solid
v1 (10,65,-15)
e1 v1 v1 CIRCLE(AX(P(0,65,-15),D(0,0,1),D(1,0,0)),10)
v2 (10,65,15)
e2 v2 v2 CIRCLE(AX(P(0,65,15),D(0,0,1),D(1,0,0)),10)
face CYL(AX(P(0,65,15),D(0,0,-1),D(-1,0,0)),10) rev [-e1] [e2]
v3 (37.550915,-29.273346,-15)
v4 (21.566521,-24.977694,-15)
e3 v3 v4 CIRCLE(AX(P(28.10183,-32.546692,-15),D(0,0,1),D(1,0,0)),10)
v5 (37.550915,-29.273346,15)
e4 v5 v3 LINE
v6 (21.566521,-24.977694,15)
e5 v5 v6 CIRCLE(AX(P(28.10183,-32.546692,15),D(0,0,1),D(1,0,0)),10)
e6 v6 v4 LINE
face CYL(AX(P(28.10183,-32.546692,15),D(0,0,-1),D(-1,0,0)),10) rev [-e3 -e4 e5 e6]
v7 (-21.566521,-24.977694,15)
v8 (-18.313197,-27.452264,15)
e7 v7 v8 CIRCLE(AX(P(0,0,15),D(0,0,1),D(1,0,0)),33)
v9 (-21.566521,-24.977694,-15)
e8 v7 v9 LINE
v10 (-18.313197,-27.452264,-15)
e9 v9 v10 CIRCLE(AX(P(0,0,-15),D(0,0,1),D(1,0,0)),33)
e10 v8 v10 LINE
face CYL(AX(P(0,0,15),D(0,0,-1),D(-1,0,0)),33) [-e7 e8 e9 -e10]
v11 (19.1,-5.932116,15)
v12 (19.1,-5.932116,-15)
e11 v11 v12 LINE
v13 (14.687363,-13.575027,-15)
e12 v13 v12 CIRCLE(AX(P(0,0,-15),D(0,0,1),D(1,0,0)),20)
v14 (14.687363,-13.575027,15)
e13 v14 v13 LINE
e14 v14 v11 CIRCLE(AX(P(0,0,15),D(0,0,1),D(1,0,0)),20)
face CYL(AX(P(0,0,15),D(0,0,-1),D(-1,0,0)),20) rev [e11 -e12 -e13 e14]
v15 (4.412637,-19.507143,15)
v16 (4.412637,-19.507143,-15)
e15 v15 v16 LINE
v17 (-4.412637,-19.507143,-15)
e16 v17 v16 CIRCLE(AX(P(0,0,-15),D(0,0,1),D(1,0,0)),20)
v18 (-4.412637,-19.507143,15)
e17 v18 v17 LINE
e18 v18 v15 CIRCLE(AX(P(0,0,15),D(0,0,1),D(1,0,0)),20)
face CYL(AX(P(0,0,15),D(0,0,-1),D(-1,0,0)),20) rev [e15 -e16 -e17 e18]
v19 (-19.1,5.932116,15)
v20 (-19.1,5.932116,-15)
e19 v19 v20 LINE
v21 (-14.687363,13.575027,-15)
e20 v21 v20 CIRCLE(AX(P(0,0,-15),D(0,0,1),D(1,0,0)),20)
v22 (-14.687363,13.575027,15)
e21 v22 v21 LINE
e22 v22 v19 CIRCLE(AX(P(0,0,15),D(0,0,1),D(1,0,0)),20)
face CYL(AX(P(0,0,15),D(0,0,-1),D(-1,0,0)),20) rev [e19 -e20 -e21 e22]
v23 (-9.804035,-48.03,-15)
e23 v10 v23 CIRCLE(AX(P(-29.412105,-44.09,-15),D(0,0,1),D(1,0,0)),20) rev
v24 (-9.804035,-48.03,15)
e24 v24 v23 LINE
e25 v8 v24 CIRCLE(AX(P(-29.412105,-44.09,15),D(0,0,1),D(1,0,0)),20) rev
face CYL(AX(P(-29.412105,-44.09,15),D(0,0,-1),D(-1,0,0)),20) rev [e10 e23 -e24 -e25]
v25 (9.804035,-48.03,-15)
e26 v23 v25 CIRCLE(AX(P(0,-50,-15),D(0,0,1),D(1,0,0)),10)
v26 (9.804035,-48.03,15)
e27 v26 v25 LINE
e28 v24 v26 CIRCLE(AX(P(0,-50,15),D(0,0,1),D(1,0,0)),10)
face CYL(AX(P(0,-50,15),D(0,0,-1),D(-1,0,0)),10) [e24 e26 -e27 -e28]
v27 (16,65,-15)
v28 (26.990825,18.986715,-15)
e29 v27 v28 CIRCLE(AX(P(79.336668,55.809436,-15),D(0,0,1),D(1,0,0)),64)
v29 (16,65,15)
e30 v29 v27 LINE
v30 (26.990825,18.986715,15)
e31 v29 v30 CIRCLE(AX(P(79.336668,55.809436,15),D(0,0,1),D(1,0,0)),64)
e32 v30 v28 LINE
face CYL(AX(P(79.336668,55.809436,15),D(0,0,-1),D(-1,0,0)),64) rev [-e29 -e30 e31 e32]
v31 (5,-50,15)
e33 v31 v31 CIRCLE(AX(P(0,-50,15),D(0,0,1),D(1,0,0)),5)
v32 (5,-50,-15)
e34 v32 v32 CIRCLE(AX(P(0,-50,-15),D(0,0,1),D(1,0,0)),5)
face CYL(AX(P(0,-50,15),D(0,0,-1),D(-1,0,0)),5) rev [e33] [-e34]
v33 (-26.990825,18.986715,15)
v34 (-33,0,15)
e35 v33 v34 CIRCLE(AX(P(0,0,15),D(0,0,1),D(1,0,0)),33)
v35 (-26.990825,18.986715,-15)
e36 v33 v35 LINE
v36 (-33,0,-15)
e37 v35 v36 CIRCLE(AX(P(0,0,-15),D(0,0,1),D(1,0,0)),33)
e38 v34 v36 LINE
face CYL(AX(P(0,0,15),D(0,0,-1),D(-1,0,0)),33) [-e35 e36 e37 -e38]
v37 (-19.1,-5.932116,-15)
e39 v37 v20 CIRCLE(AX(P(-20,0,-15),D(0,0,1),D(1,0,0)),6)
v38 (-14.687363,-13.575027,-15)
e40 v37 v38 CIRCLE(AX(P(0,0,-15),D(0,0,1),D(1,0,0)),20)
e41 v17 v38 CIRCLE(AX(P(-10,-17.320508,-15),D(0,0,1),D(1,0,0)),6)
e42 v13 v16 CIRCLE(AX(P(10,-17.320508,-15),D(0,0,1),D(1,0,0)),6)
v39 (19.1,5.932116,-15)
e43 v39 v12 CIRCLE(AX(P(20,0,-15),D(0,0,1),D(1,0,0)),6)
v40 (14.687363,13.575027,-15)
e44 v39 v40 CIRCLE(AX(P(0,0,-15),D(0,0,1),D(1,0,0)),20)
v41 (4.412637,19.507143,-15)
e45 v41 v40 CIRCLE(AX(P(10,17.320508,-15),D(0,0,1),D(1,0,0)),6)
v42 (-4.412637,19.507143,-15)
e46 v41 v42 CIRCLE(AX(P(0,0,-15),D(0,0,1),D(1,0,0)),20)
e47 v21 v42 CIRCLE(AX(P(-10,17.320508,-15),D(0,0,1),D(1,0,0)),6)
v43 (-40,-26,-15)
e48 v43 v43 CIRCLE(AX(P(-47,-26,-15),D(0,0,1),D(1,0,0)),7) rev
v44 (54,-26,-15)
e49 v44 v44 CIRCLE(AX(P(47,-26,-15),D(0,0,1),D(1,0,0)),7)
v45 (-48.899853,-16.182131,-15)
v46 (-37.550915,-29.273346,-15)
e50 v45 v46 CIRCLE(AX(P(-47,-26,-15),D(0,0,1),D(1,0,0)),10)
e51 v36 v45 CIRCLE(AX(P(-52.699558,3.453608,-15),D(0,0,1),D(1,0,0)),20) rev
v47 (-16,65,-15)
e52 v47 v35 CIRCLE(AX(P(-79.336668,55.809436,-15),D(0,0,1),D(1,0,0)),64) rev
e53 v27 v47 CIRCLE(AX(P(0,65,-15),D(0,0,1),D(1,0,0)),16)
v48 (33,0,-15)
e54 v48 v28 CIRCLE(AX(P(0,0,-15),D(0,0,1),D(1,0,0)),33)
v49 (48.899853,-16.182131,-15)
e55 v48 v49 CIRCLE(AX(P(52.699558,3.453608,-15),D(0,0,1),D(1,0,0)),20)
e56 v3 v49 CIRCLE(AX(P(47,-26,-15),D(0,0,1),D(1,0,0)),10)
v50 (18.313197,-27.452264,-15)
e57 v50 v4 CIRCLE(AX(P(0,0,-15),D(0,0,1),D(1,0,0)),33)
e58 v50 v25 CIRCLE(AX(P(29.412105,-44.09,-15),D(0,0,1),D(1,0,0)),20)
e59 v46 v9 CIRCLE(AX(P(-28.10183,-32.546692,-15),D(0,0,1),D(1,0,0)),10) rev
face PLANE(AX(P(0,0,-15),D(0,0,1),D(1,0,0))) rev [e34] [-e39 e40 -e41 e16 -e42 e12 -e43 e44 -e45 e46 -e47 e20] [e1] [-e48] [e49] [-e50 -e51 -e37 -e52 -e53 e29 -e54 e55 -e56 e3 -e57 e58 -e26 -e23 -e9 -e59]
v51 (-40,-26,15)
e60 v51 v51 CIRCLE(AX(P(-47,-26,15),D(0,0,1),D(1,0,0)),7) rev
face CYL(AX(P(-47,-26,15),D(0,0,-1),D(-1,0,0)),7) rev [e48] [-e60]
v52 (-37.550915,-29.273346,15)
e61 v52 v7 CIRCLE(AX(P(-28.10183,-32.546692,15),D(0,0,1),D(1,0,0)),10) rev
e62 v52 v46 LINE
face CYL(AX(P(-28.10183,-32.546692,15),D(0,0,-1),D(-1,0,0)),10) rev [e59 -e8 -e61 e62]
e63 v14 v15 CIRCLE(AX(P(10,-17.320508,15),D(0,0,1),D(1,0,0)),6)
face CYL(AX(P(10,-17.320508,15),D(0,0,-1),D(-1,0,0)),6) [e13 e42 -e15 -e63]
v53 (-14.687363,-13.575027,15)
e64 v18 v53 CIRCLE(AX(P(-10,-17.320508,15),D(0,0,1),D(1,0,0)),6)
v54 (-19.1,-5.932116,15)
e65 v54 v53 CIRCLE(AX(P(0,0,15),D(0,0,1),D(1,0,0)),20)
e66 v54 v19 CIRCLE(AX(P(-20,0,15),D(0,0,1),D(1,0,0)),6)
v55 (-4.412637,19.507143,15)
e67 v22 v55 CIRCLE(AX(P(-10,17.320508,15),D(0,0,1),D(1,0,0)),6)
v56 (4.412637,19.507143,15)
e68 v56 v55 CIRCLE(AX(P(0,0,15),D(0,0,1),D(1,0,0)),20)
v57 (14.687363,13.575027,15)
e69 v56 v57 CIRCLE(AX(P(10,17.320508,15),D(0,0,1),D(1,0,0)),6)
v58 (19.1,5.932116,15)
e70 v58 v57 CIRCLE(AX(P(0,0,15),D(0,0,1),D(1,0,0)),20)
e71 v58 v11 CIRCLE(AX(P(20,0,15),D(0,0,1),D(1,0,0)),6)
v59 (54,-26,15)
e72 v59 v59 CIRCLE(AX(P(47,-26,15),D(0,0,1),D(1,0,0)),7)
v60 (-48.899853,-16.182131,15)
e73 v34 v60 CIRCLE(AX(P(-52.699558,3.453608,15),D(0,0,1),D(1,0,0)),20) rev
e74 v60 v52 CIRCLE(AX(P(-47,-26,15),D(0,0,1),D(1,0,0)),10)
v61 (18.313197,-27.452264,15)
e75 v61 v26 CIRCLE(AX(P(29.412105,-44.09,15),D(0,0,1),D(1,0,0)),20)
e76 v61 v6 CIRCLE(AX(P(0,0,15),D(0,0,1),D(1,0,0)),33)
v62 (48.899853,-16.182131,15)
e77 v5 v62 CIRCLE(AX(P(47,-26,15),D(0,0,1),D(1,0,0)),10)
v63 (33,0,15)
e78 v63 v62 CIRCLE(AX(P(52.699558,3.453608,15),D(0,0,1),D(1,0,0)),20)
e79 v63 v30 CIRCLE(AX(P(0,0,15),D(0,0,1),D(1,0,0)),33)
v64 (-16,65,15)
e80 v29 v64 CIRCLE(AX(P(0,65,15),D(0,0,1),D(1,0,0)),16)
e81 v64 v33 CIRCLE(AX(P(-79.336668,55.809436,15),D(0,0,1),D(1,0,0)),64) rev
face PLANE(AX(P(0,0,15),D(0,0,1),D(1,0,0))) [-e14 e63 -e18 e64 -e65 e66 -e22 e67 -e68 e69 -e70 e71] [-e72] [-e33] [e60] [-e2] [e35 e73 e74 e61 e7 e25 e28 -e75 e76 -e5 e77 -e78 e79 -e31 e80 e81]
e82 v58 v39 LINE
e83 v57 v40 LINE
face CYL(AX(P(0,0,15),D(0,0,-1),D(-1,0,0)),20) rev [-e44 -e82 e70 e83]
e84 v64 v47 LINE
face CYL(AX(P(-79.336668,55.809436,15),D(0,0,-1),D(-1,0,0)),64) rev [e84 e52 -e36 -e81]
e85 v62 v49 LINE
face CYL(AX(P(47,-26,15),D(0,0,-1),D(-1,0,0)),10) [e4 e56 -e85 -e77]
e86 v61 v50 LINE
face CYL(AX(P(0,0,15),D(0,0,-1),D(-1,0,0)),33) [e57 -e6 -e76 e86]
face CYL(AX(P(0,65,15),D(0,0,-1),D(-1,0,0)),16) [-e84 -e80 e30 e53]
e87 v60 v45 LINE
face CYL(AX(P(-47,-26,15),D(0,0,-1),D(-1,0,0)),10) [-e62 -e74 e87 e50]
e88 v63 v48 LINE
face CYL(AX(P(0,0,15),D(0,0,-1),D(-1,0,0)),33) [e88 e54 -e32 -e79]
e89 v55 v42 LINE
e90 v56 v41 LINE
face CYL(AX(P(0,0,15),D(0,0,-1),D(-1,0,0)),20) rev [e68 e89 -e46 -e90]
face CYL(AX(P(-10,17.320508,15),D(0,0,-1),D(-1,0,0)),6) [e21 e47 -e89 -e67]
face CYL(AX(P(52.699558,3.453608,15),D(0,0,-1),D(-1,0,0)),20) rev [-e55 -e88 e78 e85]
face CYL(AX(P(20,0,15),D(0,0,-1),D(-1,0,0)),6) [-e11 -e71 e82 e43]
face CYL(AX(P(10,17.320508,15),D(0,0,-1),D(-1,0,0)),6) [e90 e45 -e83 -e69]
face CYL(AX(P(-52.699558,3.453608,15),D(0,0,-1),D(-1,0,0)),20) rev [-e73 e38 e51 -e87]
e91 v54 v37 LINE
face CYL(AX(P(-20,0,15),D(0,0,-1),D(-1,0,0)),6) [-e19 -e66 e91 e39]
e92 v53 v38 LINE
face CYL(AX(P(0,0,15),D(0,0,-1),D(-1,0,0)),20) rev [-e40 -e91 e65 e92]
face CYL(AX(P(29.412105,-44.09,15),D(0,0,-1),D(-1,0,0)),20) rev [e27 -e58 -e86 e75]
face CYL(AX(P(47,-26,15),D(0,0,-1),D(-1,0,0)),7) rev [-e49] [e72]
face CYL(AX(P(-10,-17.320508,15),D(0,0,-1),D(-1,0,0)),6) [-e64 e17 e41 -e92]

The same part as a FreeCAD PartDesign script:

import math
import FreeCAD as App
import Part
import Sketcher
from FreeCAD import Vector
Q = App.Units.Quantity

doc = App.newDocument("Part")
params = doc.addObject("Spreadsheet::Sheet", "Params")
for row, (alias, value) in enumerate([
    ("sketch1_diameter", "14 mm"),
    ("sketch1_diameter2", "10 mm"),
    ("sketch1_diameter3", "20 mm"),
    ("sketch1_radius", "20 mm"),
    ("sketch1_radius2", "33 mm"),
    ("pad1_length", "30 mm"),
], start=1):
    params.set(f"A{row}", alias)
    params.set(f"B{row}", "=" + value)
    params.setAlias(f"B{row}", alias)

body = doc.addObject("PartDesign::Body", "Body")

# Sketch on XY plane
sketch1 = body.newObject("Sketcher::SketchObject", "Sketch")
sketch1.AttachmentSupport = (doc.getObject("XY_Plane"), [""])
sketch1.MapMode = "FlatFace"
sketch1.addGeometry([
    Part.ArcOfCircle(Part.Circle(Vector(-29.4, -44.1, 0), Vector(0, 0, 1), 20), math.radians(-11), math.radians(56)),  # 0
    Part.ArcOfCircle(Part.Circle(Vector(0, -50, 0), Vector(0, 0, 1), 10), math.radians(169), math.radians(371)),  # 1
    Part.ArcOfCircle(Part.Circle(Vector(29.4, -44.1, 0), Vector(0, 0, 1), 20), math.radians(124), math.radians(191)),  # 2
    Part.ArcOfCircle(Part.Circle(Vector(0, 0, 0), Vector(0, 0, 1), 33), math.radians(-56.29), math.radians(-49.19)),  # 3
    Part.ArcOfCircle(Part.Circle(Vector(28.1, -32.5, 0), Vector(0, 0, 1), 10), math.radians(19), math.radians(131)),  # 4
    Part.ArcOfCircle(Part.Circle(Vector(47, -26, 0), Vector(0, 0, 1), 10), math.radians(-161), math.radians(79)),  # 5
    Part.ArcOfCircle(Part.Circle(Vector(52.7, 3.5, 0), Vector(0, 0, 1), 20), math.radians(-170), math.radians(-101)),  # 6
    Part.ArcOfCircle(Part.Circle(Vector(0, 0, 0), Vector(0, 0, 1), 33), math.radians(0), math.radians(35)),  # 7
    Part.ArcOfCircle(Part.Circle(Vector(79.3, 55.8, 0), Vector(0, 0, 1), 64), math.radians(175), math.radians(215)),  # 8
    Part.ArcOfCircle(Part.Circle(Vector(79.3, 55.8, 0), Vector(0, 0, 1), 64), math.radians(171.74), math.radians(175.04)),  # 9
    Part.ArcOfCircle(Part.Circle(Vector(0, 65, 0), Vector(0, 0, 1), 16), math.radians(0), math.radians(180)),  # 10
    Part.ArcOfCircle(Part.Circle(Vector(-79.3, 55.8, 0), Vector(0, 0, 1), 64), math.radians(4.96), math.radians(8.26)),  # 11
    Part.ArcOfCircle(Part.Circle(Vector(-79.3, 55.8, 0), Vector(0, 0, 1), 64), math.radians(-35), math.radians(5)),  # 12
    Part.ArcOfCircle(Part.Circle(Vector(0, 0, 0), Vector(0, 0, 1), 33), math.radians(145), math.radians(180)),  # 13
    Part.ArcOfCircle(Part.Circle(Vector(-52.7, 3.5, 0), Vector(0, 0, 1), 20), math.radians(-79), math.radians(-10)),  # 14
    Part.ArcOfCircle(Part.Circle(Vector(-47, -26, 0), Vector(0, 0, 1), 10), math.radians(101), math.radians(341)),  # 15
    Part.ArcOfCircle(Part.Circle(Vector(-28.1, -32.5, 0), Vector(0, 0, 1), 10), math.radians(49), math.radians(161)),  # 16
    Part.ArcOfCircle(Part.Circle(Vector(0, 0, 0), Vector(0, 0, 1), 33), math.radians(-130.81), math.radians(-123.71)),  # 17
    Part.Circle(Vector(-47, -26, 0), Vector(0, 0, 1), 7),  # 18
    Part.Circle(Vector(0, -50, 0), Vector(0, 0, 1), 5),  # 19
    Part.Circle(Vector(47, -26, 0), Vector(0, 0, 1), 7),  # 20
    Part.ArcOfCircle(Part.Circle(Vector(20, 0, 0), Vector(0, 0, 1), 6), math.radians(99), math.radians(261)),  # 21
    Part.ArcOfCircle(Part.Circle(Vector(0, 0, 0), Vector(0, 0, 1), 20), math.radians(-43), math.radians(-17)),  # 22
    Part.ArcOfCircle(Part.Circle(Vector(10, -17.3, 0), Vector(0, 0, 1), 6), math.radians(39), math.radians(201)),  # 23
    Part.ArcOfCircle(Part.Circle(Vector(0, 0, 0), Vector(0, 0, 1), 20), math.radians(-103), math.radians(-77)),  # 24
    Part.ArcOfCircle(Part.Circle(Vector(-10, -17.3, 0), Vector(0, 0, 1), 6), math.radians(-21), math.radians(141)),  # 25
    Part.ArcOfCircle(Part.Circle(Vector(0, 0, 0), Vector(0, 0, 1), 20), math.radians(-163), math.radians(-137)),  # 26
    Part.ArcOfCircle(Part.Circle(Vector(-20, 0, 0), Vector(0, 0, 1), 6), math.radians(-81), math.radians(81)),  # 27
    Part.ArcOfCircle(Part.Circle(Vector(0, 0, 0), Vector(0, 0, 1), 20), math.radians(137), math.radians(163)),  # 28
    Part.ArcOfCircle(Part.Circle(Vector(-10, 17.3, 0), Vector(0, 0, 1), 6), math.radians(-141), math.radians(21)),  # 29
    Part.ArcOfCircle(Part.Circle(Vector(0, 0, 0), Vector(0, 0, 1), 20), math.radians(77), math.radians(103)),  # 30
    Part.ArcOfCircle(Part.Circle(Vector(10, 17.3, 0), Vector(0, 0, 1), 6), math.radians(159), math.radians(321)),  # 31
    Part.ArcOfCircle(Part.Circle(Vector(0, 0, 0), Vector(0, 0, 1), 20), math.radians(17), math.radians(43)),  # 32
    Part.Circle(Vector(0, 65, 0), Vector(0, 0, 1), 10),  # 33
], False)
sketch1.addConstraint([
    Sketcher.Constraint("Tangent", 0, 1, 1, 1),
    Sketcher.Constraint("Tangent", 1, 2, 2, 2),
    Sketcher.Constraint("Tangent", 2, 1, 3, 1),
    Sketcher.Constraint("Tangent", 3, 2, 4, 2),
    Sketcher.Constraint("Tangent", 4, 1, 5, 1),
    Sketcher.Constraint("Tangent", 5, 2, 6, 2),
    Sketcher.Constraint("Coincident", 6, 1, 7, 1),
    Sketcher.Constraint("Tangent", 7, 2, 8, 2),
    Sketcher.Constraint("Tangent", 8, 1, 9, 2),
    Sketcher.Constraint("Coincident", 9, 1, 10, 1),
    Sketcher.Constraint("Coincident", 10, 2, 11, 2),
    Sketcher.Constraint("Tangent", 11, 1, 12, 2),
    Sketcher.Constraint("Tangent", 12, 1, 13, 1),
    Sketcher.Constraint("Coincident", 13, 2, 14, 2),
    Sketcher.Constraint("Tangent", 14, 1, 15, 1),
    Sketcher.Constraint("Tangent", 15, 2, 16, 2),
    Sketcher.Constraint("Tangent", 16, 1, 17, 1),
    Sketcher.Constraint("Tangent", 17, 2, 0, 2),
    Sketcher.Constraint("Coincident", 21, 2, 22, 2),
    Sketcher.Constraint("Coincident", 22, 1, 23, 1),
    Sketcher.Constraint("Coincident", 23, 2, 24, 2),
    Sketcher.Constraint("Coincident", 24, 1, 25, 1),
    Sketcher.Constraint("Coincident", 25, 2, 26, 2),
    Sketcher.Constraint("Coincident", 26, 1, 27, 1),
    Sketcher.Constraint("Coincident", 27, 2, 28, 2),
    Sketcher.Constraint("Coincident", 28, 1, 29, 1),
    Sketcher.Constraint("Coincident", 29, 2, 30, 2),
    Sketcher.Constraint("Coincident", 30, 1, 31, 1),
    Sketcher.Constraint("Coincident", 31, 2, 32, 2),
    Sketcher.Constraint("Coincident", 32, 1, 21, 1),
    Sketcher.Constraint("Coincident", 3, 3, -1, 1),
    Sketcher.Constraint("Coincident", 7, 3, -1, 1),
    Sketcher.Constraint("Coincident", 13, 3, -1, 1),
    Sketcher.Constraint("Coincident", 17, 3, -1, 1),
    Sketcher.Constraint("Coincident", 22, 3, -1, 1),
    Sketcher.Constraint("Coincident", 24, 3, -1, 1),
    Sketcher.Constraint("Coincident", 26, 3, -1, 1),
    Sketcher.Constraint("Coincident", 28, 3, -1, 1),
    Sketcher.Constraint("Coincident", 30, 3, -1, 1),
    Sketcher.Constraint("Coincident", 32, 3, -1, 1),
    Sketcher.Constraint("Coincident", 18, 3, 15, 3),
    Sketcher.Constraint("Coincident", 19, 3, 1, 3),
    Sketcher.Constraint("Coincident", 20, 3, 5, 3),
    Sketcher.Constraint("Coincident", 33, 3, 10, 3),
    Sketcher.Constraint("Equal", 0, 2),
    Sketcher.Constraint("Equal", 1, 4),
    Sketcher.Constraint("Equal", 4, 5),
    Sketcher.Constraint("Equal", 2, 6),
    Sketcher.Constraint("Equal", 3, 7),
    Sketcher.Constraint("Equal", 8, 9),
    Sketcher.Constraint("Equal", 9, 11),
    Sketcher.Constraint("Equal", 11, 12),
    Sketcher.Constraint("Equal", 7, 13),
    Sketcher.Constraint("Equal", 6, 14),
    Sketcher.Constraint("Equal", 5, 15),
    Sketcher.Constraint("Equal", 15, 16),
    Sketcher.Constraint("Equal", 13, 17),
    Sketcher.Constraint("Equal", 18, 20),
    Sketcher.Constraint("Equal", 14, 22),
    Sketcher.Constraint("Equal", 21, 23),
    Sketcher.Constraint("Equal", 22, 24),
    Sketcher.Constraint("Equal", 23, 25),
    Sketcher.Constraint("Equal", 24, 26),
    Sketcher.Constraint("Equal", 25, 27),
    Sketcher.Constraint("Equal", 26, 28),
    Sketcher.Constraint("Equal", 27, 29),
    Sketcher.Constraint("Equal", 28, 30),
    Sketcher.Constraint("Equal", 29, 31),
    Sketcher.Constraint("Equal", 30, 32),
    Sketcher.Constraint("Equal", 16, 33),
    Sketcher.Constraint("Symmetric", 21, 3, 27, 3, -1, 1),
    Sketcher.Constraint("Symmetric", 23, 3, 29, 3, -1, 1),
    Sketcher.Constraint("Symmetric", 25, 3, 31, 3, -1, 1),
    Sketcher.Constraint("Symmetric", 6, 3, 14, 3, -2),
    Sketcher.Constraint("Symmetric", 23, 3, 25, 3, -2),
    Sketcher.Constraint("Symmetric", 9, 1, 10, 2, -2),
    Sketcher.Constraint("PointOnObject", 1, 3, -2),
    Sketcher.Constraint("PointOnObject", 21, 3, -1),
    Sketcher.Constraint("PointOnObject", 6, 1, -1),
    Sketcher.Constraint("Horizontal", 5, 3, 15, 3),
    Sketcher.Constraint("Horizontal", 33, 3, 9, 1),
    Sketcher.Constraint("Horizontal", 8, 1, 11, 1),
    Sketcher.Constraint("Diameter", 18, Q("14 mm")),
    Sketcher.Constraint("Diameter", 19, Q("10 mm")),
    Sketcher.Constraint("Diameter", 33, Q("20 mm")),
    Sketcher.Constraint("Radius", 0, Q("20 mm")),
    Sketcher.Constraint("Radius", 3, Q("33 mm")),
    Sketcher.Constraint("Radius", 8, Q("64 mm")),
    Sketcher.Constraint("Radius", 10, Q("16 mm")),
    Sketcher.Constraint("Radius", 21, Q("6 mm")),
    Sketcher.Constraint("DistanceY", 1, 3, -1, 1, Q("50 mm")),
    Sketcher.Constraint("DistanceX", -1, 1, 5, 3, Q("47 mm")),
    Sketcher.Constraint("DistanceY", 5, 3, -1, 1, Q("26 mm")),
    Sketcher.Constraint("DistanceY", -1, 1, 10, 3, Q("65 mm")),
    Sketcher.Constraint("DistanceX", -1, 1, 21, 3, Q("20 mm")),
    Sketcher.Constraint("DistanceX", -1, 1, 23, 3, Q("10 mm")),
    Sketcher.Constraint("DistanceY", 23, 3, -1, 1, Q("17.320508 mm")),
    Sketcher.Constraint("DistanceX", -1, 1, 8, 1, Q("15.576262 mm")),
])
sketch1.setExpression("Constraints[82]", "Params.sketch1_diameter")
sketch1.setExpression("Constraints[83]", "Params.sketch1_diameter2")
sketch1.setExpression("Constraints[84]", "Params.sketch1_diameter3")
sketch1.setExpression("Constraints[85]", "Params.sketch1_radius")
sketch1.setExpression("Constraints[86]", "Params.sketch1_radius2")
pad1 = body.newObject("PartDesign::Pad", "Pad")
pad1.Profile = sketch1
pad1.setExpression("Length", "Params.pad1_length")
pad1.Midplane = True

doc.recompute()
